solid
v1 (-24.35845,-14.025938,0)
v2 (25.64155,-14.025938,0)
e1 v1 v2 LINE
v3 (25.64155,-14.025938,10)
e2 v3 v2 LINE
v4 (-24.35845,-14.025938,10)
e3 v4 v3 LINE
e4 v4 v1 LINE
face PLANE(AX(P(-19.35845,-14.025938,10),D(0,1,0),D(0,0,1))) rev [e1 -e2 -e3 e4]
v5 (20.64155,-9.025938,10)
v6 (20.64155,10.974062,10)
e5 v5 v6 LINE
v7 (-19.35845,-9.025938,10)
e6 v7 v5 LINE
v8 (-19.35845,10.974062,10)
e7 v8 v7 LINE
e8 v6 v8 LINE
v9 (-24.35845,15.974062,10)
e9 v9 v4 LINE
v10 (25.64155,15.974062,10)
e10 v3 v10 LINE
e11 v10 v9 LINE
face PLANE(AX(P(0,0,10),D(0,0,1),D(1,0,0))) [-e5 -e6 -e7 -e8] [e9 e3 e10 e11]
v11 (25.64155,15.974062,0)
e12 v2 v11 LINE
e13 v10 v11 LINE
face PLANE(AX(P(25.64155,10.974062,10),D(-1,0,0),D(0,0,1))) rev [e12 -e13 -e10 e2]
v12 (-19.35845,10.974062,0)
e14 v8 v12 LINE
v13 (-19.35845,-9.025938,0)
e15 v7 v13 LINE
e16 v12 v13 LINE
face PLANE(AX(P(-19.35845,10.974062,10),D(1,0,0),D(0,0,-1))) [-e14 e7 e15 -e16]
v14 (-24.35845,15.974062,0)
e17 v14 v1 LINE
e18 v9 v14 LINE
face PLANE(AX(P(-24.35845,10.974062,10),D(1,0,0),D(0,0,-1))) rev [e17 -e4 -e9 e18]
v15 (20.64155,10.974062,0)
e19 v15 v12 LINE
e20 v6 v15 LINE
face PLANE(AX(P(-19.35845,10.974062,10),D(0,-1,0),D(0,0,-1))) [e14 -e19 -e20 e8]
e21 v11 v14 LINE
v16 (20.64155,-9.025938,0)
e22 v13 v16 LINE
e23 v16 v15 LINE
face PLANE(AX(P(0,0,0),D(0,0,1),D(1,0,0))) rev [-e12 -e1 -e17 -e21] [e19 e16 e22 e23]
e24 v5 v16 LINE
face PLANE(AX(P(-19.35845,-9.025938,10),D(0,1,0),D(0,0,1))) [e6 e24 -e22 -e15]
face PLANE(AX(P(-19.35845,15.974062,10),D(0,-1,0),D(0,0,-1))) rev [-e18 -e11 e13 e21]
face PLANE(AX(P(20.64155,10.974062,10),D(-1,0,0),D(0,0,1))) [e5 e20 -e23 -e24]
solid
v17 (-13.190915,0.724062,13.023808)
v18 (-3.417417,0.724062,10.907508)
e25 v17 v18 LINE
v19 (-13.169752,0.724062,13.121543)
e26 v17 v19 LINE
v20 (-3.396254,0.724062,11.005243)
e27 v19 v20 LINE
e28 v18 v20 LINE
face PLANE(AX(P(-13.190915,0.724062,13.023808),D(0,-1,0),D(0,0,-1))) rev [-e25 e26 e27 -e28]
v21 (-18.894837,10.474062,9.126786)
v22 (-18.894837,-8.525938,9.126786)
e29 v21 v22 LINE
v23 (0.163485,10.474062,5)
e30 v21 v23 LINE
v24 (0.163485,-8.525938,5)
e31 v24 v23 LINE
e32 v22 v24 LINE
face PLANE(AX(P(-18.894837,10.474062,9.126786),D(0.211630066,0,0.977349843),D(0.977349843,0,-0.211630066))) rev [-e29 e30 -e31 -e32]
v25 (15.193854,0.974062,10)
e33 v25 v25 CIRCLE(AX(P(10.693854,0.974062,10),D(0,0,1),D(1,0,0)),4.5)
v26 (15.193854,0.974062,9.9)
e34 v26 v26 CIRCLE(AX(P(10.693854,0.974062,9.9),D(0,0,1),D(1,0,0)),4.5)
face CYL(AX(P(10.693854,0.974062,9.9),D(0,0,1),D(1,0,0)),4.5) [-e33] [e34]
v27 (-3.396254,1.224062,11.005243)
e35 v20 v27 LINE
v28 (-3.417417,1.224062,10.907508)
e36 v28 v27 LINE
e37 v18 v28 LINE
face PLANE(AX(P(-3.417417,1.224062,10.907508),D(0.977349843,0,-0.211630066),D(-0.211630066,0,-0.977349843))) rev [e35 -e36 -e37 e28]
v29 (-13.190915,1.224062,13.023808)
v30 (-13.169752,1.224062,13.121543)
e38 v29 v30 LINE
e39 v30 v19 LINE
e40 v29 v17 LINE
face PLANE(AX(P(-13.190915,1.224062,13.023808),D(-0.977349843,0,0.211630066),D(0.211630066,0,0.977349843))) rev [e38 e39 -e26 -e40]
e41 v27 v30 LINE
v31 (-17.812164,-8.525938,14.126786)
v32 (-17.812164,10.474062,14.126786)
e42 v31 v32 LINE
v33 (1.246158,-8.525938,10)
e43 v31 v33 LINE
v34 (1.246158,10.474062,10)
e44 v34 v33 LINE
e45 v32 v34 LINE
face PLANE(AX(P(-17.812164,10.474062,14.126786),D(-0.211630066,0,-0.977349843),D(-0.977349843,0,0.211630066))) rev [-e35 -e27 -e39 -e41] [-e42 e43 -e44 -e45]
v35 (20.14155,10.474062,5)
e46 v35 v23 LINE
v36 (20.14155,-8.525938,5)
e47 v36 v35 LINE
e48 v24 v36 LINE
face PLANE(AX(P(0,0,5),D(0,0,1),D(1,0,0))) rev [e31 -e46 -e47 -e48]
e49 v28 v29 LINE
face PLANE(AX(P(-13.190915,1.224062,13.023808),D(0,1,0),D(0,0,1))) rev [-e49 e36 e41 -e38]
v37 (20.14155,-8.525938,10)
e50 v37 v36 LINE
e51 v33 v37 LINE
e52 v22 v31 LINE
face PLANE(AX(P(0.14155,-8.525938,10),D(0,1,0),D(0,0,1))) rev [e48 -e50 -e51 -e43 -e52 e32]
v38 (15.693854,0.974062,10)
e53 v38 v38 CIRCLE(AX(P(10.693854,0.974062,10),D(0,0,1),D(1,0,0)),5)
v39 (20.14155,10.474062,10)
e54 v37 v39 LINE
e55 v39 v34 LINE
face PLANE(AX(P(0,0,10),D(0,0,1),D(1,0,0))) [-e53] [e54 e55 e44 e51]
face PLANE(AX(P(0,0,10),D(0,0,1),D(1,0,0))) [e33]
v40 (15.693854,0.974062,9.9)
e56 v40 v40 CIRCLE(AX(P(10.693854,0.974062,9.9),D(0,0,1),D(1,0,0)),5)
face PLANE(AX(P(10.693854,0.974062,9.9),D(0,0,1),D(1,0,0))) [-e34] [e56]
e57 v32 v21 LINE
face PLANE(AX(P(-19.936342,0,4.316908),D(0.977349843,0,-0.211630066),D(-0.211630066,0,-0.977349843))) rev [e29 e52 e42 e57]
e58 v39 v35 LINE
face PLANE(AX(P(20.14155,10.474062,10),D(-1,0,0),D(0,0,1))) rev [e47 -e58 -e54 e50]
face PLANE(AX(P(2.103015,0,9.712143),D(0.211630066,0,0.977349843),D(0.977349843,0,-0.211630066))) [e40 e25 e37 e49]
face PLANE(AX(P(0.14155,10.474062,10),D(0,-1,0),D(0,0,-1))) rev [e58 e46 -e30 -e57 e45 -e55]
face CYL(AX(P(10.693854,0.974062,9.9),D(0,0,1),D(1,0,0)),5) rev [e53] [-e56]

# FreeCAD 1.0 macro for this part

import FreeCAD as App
import Part
import Sketcher
from FreeCAD import Vector

doc = App.newDocument("Part")
body = doc.addObject("PartDesign::Body", "Body")

sketch1 = body.newObject("Sketcher::SketchObject", "Sketch")
sketch1.AttachmentSupport = (doc.getObject("XY_Plane"), [""])
sketch1.MapMode = "FlatFace"
sketch1.addGeometry(Part.LineSegment(Vector(-24, 16, 0), Vector(-24, -14, 0)), False)
sketch1.addGeometry(Part.LineSegment(Vector(-24, -14, 0), Vector(26, -14, 0)), False)
sketch1.addGeometry(Part.LineSegment(Vector(26, -14, 0), Vector(26, 16, 0)), False)
sketch1.addGeometry(Part.LineSegment(Vector(26, 16, 0), Vector(-24, 16, 0)), False)
sketch1.addGeometry(Part.LineSegment(Vector(21, -9, 0), Vector(-19, -9, 0)), False)
sketch1.addGeometry(Part.LineSegment(Vector(-19, -9, 0), Vector(-19, 11, 0)), False)
sketch1.addGeometry(Part.LineSegment(Vector(-19, 11, 0), Vector(21, 11, 0)), False)
sketch1.addGeometry(Part.LineSegment(Vector(21, 11, 0), Vector(21, -9, 0)), False)
sketch1.addConstraint(Sketcher.Constraint("Coincident", 0, 2, 1, 1))
sketch1.addConstraint(Sketcher.Constraint("Coincident", 1, 2, 2, 1))
sketch1.addConstraint(Sketcher.Constraint("Coincident", 2, 2, 3, 1))
sketch1.addConstraint(Sketcher.Constraint("Coincident", 3, 2, 0, 1))
sketch1.addConstraint(Sketcher.Constraint("Coincident", 4, 2, 5, 1))
sketch1.addConstraint(Sketcher.Constraint("Coincident", 5, 2, 6, 1))
sketch1.addConstraint(Sketcher.Constraint("Coincident", 6, 2, 7, 1))
sketch1.addConstraint(Sketcher.Constraint("Coincident", 7, 2, 4, 1))
sketch1.addConstraint(Sketcher.Constraint("Vertical", 0))
sketch1.addConstraint(Sketcher.Constraint("Horizontal", 1))
sketch1.addConstraint(Sketcher.Constraint("Vertical", 2))
sketch1.addConstraint(Sketcher.Constraint("Horizontal", 3))
sketch1.addConstraint(Sketcher.Constraint("Horizontal", 4))
sketch1.addConstraint(Sketcher.Constraint("Vertical", 5))
sketch1.addConstraint(Sketcher.Constraint("Horizontal", 6))
sketch1.addConstraint(Sketcher.Constraint("Vertical", 7))
sketch1.addConstraint(Sketcher.Constraint("DistanceX", 1, 1, 1, 2, 50.0))
sketch1.addConstraint(Sketcher.Constraint("DistanceX", 4, 2, 4, 1, 40.0))
sketch1.addConstraint(Sketcher.Constraint("DistanceY", 0, 2, 0, 1, 30.0))
sketch1.addConstraint(Sketcher.Constraint("DistanceY", 5, 1, 5, 2, 20.0))
sketch1.addConstraint(Sketcher.Constraint("DistanceX", 0, 2, 4, 2, 5.0))
sketch1.addConstraint(Sketcher.Constraint("DistanceY", 0, 2, 4, 2, 5.0))
sketch1.addConstraint(Sketcher.Constraint("DistanceX", 0, 2, -1, 1, 24.35845))
sketch1.addConstraint(Sketcher.Constraint("DistanceY", 0, 2, -1, 1, 14.025938))
pad1 = body.newObject("PartDesign::Pad", "Pad")
pad1.Profile = sketch1
pad1.Length = 10
body2 = doc.addObject("PartDesign::Body", "Body001")

sketch2 = body2.newObject("Sketcher::SketchObject", "Sketch001")
sketch2.AttachmentSupport = (doc.getObject("XY_Plane001"), [""])
sketch2.MapMode = "FlatFace"
sketch2.AttachmentOffset = App.Placement(Vector(0, 0, 5), App.Rotation())
sketch2.addGeometry(Part.LineSegment(Vector(0, 10, 0), Vector(0, -9, 0)), False)
sketch2.addGeometry(Part.LineSegment(Vector(0, -9, 0), Vector(20, -9, 0)), False)
sketch2.addGeometry(Part.LineSegment(Vector(20, -9, 0), Vector(20, 10, 0)), False)
sketch2.addGeometry(Part.LineSegment(Vector(20, 10, 0), Vector(0, 10, 0)), False)
sketch2.addConstraint(Sketcher.Constraint("Coincident", 0, 2, 1, 1))
sketch2.addConstraint(Sketcher.Constraint("Coincident", 1, 2, 2, 1))
sketch2.addConstraint(Sketcher.Constraint("Coincident", 2, 2, 3, 1))
sketch2.addConstraint(Sketcher.Constraint("Coincident", 3, 2, 0, 1))
sketch2.addConstraint(Sketcher.Constraint("Vertical", 0))
sketch2.addConstraint(Sketcher.Constraint("Horizontal", 1))
sketch2.addConstraint(Sketcher.Constraint("Vertical", 2))
sketch2.addConstraint(Sketcher.Constraint("Horizontal", 3))
sketch2.addConstraint(Sketcher.Constraint("DistanceX", 1, 1, 1, 2, 20.0))
sketch2.addConstraint(Sketcher.Constraint("DistanceY", 0, 2, 0, 1, 19.0))
sketch2.addConstraint(Sketcher.Constraint("DistanceX", -1, 1, 0, 2, 0.14155))
sketch2.addConstraint(Sketcher.Constraint("DistanceY", 0, 2, -1, 1, 8.525938))
pad2 = body2.newObject("PartDesign::Pad", "Pad001")
pad2.Profile = sketch2
pad2.Length = 5

sketch3 = body2.newObject("Sketcher::SketchObject", "Sketch002")
sketch3.AttachmentSupport = (doc.getObject("XZ_Plane001"), [""])
sketch3.MapMode = "FlatFace"
sketch3.AttachmentOffset = App.Placement(Vector(0, 0, 8.525938), App.Rotation())
sketch3.addGeometry(Part.LineSegment(Vector(0.1, 4.9, 0), Vector(1.2, 10, 0)), False)
sketch3.addGeometry(Part.LineSegment(Vector(1.2, 10, 0), Vector(0.1, 10, 0)), False)
sketch3.addGeometry(Part.LineSegment(Vector(0.1, 10, 0), Vector(0.1, 4.9, 0)), False)
sketch3.addConstraint(Sketcher.Constraint("Coincident", 0, 2, 1, 1))
sketch3.addConstraint(Sketcher.Constraint("Coincident", 1, 2, 2, 1))
sketch3.addConstraint(Sketcher.Constraint("Coincident", 2, 2, 0, 1))
sketch3.addConstraint(Sketcher.Constraint("Horizontal", 1))
sketch3.addConstraint(Sketcher.Constraint("Vertical", 2))
sketch3.addConstraint(Sketcher.Constraint("DistanceY", -1, 1, 0, 2, 10.0))
sketch3.addConstraint(Sketcher.Constraint("DistanceY", 2, 2, 2, 1, 5.101299))
sketch3.addConstraint(Sketcher.Constraint("Distance", 0, 5.219522))
sketch3.addConstraint(Sketcher.Constraint("DistanceX", -1, 1, 0, 2, 1.246158))
pocket1 = body2.newObject("PartDesign::Pocket", "Pocket")
pocket1.Profile = sketch3
pocket1.Length = 19

sketch4 = body2.newObject("Sketcher::SketchObject", "Sketch003")
sketch4.Placement = App.Placement(Vector(-0.87802, 0, 0.190122), App.Rotation(Vector(0.211630066, 0, 0.977349843), Vector(0, 1, 0), Vector(-0.977349843, 0, 0.211630066), "ZXY"))
sketch4.addGeometry(Part.LineSegment(Vector(5, 10, 0), Vector(5, -9, 0)), False)
sketch4.addGeometry(Part.LineSegment(Vector(5, -9, 0), Vector(10, -9, 0)), False)
sketch4.addGeometry(Part.LineSegment(Vector(10, -9, 0), Vector(10, 10, 0)), False)
sketch4.addGeometry(Part.LineSegment(Vector(10, 10, 0), Vector(5, 10, 0)), False)
sketch4.addConstraint(Sketcher.Constraint("Coincident", 0, 2, 1, 1))
sketch4.addConstraint(Sketcher.Constraint("Coincident", 1, 2, 2, 1))
sketch4.addConstraint(Sketcher.Constraint("Coincident", 2, 2, 3, 1))
sketch4.addConstraint(Sketcher.Constraint("Coincident", 3, 2, 0, 1))
sketch4.addConstraint(Sketcher.Constraint("Vertical", 0))
sketch4.addConstraint(Sketcher.Constraint("Horizontal", 1))
sketch4.addConstraint(Sketcher.Constraint("Vertical", 2))
sketch4.addConstraint(Sketcher.Constraint("Horizontal", 3))
sketch4.addConstraint(Sketcher.Constraint("DistanceY", 0, 2, 0, 1, 19.0))
sketch4.addConstraint(Sketcher.Constraint("DistanceX", 1, 1, 1, 2, 5.115875))
sketch4.addConstraint(Sketcher.Constraint("DistanceY", 0, 2, -1, 1, 8.525938))
sketch4.addConstraint(Sketcher.Constraint("DistanceX", -1, 1, 0, 2, 4.921348))
pad3 = body2.newObject("PartDesign::Pad", "Pad002")
pad3.Profile = sketch4
pad3.Length = 19.5

sketch5 = body2.newObject("Sketcher::SketchObject", "Sketch004")
sketch5.AttachmentSupport = (doc.getObject("XY_Plane001"), [""])
sketch5.MapMode = "FlatFace"
sketch5.AttachmentOffset = App.Placement(Vector(0, 0, 10), App.Rotation())
sketch5.addGeometry(Part.Circle(Vector(10.7, 1, 0), Vector(0, 0, 1), 5), False)
sketch5.addGeometry(Part.Circle(Vector(10.7, 1, 0), Vector(0, 0, 1), 4.5), False)
sketch5.addConstraint(Sketcher.Constraint("Coincident", 1, 3, 0, 3))
sketch5.addConstraint(Sketcher.Constraint("Diameter", 0, 10.0))
sketch5.addConstraint(Sketcher.Constraint("Diameter", 1, 9.0))
sketch5.addConstraint(Sketcher.Constraint("DistanceY", -1, 1, 0, 3, 0.974062))
sketch5.addConstraint(Sketcher.Constraint("DistanceX", -1, 1, 0, 3, 10.693854))
pocket2 = body2.newObject("PartDesign::Pocket", "Pocket001")
pocket2.Profile = sketch5
pocket2.Length = 0.1

sketch6 = body2.newObject("Sketcher::SketchObject", "Sketch005")
sketch6.Placement = App.Placement(Vector(2.124178, 0, 9.809878), App.Rotation(Vector(0.977349843, 0, -0.211630066), Vector(0, 1, 0), Vector(0.211630066, 0, 0.977349843), "ZXY"))
sketch6.addGeometry(Part.LineSegment(Vector(-15.6, 1.2, 0), Vector(-15.6, 0.7, 0)), False)
sketch6.addGeometry(Part.LineSegment(Vector(-15.6, 0.7, 0), Vector(-5.6, 0.7, 0)), False)
sketch6.addGeometry(Part.LineSegment(Vector(-5.6, 0.7, 0), Vector(-5.6, 1.2, 0)), False)
sketch6.addGeometry(Part.LineSegment(Vector(-5.6, 1.2, 0), Vector(-15.6, 1.2, 0)), False)
sketch6.addConstraint(Sketcher.Constraint("Coincident", 0, 2, 1, 1))
sketch6.addConstraint(Sketcher.Constraint("Coincident", 1, 2, 2, 1))
sketch6.addConstraint(Sketcher.Constraint("Coincident", 2, 2, 3, 1))
sketch6.addConstraint(Sketcher.Constraint("Coincident", 3, 2, 0, 1))
sketch6.addConstraint(Sketcher.Constraint("Vertical", 0))
sketch6.addConstraint(Sketcher.Constraint("Horizontal", 1))
sketch6.addConstraint(Sketcher.Constraint("Vertical", 2))
sketch6.addConstraint(Sketcher.Constraint("Horizontal", 3))
sketch6.addConstraint(Sketcher.Constraint("DistanceX", 1, 1, 1, 2, 10.0))
sketch6.addConstraint(Sketcher.Constraint("DistanceY", 0, 2, 0, 1, 0.5))
sketch6.addConstraint(Sketcher.Constraint("DistanceX", 0, 2, -1, 1, 15.648368))
sketch6.addConstraint(Sketcher.Constraint("DistanceY", -1, 1, 0, 2, 0.724062))
pocket3 = body2.newObject("PartDesign::Pocket", "Pocket002")
pocket3.Profile = sketch6
pocket3.Length = 0.1

doc.recompute()
